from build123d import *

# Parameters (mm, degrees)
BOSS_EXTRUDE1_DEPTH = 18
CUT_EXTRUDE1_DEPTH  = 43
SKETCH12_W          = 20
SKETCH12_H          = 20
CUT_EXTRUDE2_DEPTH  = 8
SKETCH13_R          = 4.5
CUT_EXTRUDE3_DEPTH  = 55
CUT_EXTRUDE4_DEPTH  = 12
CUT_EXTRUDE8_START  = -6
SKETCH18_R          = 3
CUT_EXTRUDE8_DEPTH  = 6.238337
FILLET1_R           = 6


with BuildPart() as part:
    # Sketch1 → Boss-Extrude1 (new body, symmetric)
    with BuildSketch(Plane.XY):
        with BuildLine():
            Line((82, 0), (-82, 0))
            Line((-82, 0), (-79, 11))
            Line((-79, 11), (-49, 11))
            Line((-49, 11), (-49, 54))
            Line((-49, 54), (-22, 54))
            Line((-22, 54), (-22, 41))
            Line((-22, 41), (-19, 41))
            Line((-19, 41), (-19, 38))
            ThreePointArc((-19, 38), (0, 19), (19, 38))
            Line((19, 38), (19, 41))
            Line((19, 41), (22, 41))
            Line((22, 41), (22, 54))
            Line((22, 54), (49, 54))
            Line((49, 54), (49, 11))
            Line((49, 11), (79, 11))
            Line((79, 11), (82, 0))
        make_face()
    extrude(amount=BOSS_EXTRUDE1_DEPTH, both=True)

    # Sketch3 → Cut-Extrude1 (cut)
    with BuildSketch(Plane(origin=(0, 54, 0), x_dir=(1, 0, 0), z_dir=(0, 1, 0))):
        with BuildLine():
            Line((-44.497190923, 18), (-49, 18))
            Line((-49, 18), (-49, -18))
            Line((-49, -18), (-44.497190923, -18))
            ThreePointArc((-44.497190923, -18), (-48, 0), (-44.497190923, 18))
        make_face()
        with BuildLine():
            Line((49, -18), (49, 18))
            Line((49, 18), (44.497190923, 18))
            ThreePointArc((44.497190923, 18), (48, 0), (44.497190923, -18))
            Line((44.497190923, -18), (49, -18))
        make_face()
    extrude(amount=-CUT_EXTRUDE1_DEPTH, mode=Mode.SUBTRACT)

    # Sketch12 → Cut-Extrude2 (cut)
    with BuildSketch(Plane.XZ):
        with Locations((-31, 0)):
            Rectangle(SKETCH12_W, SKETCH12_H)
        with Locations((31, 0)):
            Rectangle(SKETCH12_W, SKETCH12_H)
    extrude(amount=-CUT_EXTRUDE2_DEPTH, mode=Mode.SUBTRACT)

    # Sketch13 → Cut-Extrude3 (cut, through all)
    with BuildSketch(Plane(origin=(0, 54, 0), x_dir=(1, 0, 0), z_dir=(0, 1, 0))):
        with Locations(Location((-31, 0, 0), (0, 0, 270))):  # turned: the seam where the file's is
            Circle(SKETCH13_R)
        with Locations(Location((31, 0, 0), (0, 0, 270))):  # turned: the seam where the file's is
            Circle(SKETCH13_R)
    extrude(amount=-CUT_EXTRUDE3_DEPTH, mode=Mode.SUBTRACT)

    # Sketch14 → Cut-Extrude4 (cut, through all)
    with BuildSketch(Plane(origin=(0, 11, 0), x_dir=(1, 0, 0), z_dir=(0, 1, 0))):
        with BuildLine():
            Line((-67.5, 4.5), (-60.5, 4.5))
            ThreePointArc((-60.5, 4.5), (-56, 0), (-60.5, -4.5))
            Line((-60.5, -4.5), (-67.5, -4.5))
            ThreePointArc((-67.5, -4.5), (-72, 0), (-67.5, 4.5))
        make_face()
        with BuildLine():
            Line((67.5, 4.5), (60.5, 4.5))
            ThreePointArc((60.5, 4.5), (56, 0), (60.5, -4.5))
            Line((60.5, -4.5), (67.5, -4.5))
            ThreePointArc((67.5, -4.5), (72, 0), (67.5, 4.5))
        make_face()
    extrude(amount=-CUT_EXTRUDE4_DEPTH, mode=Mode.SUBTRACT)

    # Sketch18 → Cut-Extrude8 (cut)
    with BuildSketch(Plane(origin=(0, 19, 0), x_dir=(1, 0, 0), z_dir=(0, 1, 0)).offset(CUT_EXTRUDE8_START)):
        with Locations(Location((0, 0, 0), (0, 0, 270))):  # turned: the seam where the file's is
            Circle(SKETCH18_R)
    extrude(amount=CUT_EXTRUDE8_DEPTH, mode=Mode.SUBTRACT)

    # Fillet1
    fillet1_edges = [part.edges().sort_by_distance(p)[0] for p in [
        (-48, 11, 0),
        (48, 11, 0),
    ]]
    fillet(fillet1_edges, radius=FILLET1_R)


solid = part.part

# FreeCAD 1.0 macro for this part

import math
import FreeCAD as App
import Part
import Sketcher

V = App.Vector
Q = App.Units.Quantity


def edges_at(feature, points):
    """Names of the edges that pass closest to the given points."""
    edges = feature.Shape.Edges
    near = lambda p: min(range(len(edges)), key=lambda i: edges[i].distToShape(Part.Vertex(*p))[0])
    return sorted({f"Edge{near(p) + 1}" for p in points})


def add_polygon(sketch, points):
    """Adds a closed chain of lines whose ends are joined by coincident constraints."""
    first, n = sketch.GeometryCount, len(points)
    for a, b in zip(points, points[1:] + points[:1]):
        sketch.addGeometry(Part.LineSegment(App.Vector(*a, 0), App.Vector(*b, 0)), False)
    for i in range(n):
        sketch.addConstraint(Sketcher.Constraint("Coincident", first + i, 2, first + (i + 1) % n, 1))

doc = App.newDocument("Part")
body = doc.addObject("PartDesign::Body", "Body")

sketch1 = body.newObject("Sketcher::SketchObject", "Sketch")
sketch1.AttachmentSupport = (doc.getObject("XY_Plane"), [""])
sketch1.MapMode = "FlatFace"
sketch1.addGeometry([
    Part.LineSegment(V(-82, 0, 0), V(82, 0, 0)),
    Part.LineSegment(V(82, 0, 0), V(79, 11, 0)),
    Part.LineSegment(V(79, 11, 0), V(49, 11, 0)),
    Part.LineSegment(V(49, 11, 0), V(49, 54, 0)),
    Part.LineSegment(V(49, 54, 0), V(22, 54, 0)),
    Part.LineSegment(V(22, 54, 0), V(22, 41, 0)),
    Part.LineSegment(V(22, 41, 0), V(19, 41, 0)),
    Part.LineSegment(V(19, 41, 0), V(19, 38, 0)),
    Part.ArcOfCircle(Part.Circle(V(0, 38, 0), V(0, 0, 1), 19), math.radians(180), math.radians(360)),
    Part.LineSegment(V(-19, 38, 0), V(-19, 41, 0)),
    Part.LineSegment(V(-19, 41, 0), V(-22, 41, 0)),
    Part.LineSegment(V(-22, 41, 0), V(-22, 54, 0)),
    Part.LineSegment(V(-22, 54, 0), V(-49, 54, 0)),
    Part.LineSegment(V(-49, 54, 0), V(-49, 11, 0)),
    Part.LineSegment(V(-49, 11, 0), V(-79, 11, 0)),
    Part.LineSegment(V(-79, 11, 0), V(-82, 0, 0)),
], False)
sketch1.addConstraint([
    Sketcher.Constraint("Coincident", 0, 2, 1, 1),
    Sketcher.Constraint("Coincident", 1, 2, 2, 1),
    Sketcher.Constraint("Coincident", 2, 2, 3, 1),
    Sketcher.Constraint("Coincident", 3, 2, 4, 1),
    Sketcher.Constraint("Coincident", 4, 2, 5, 1),
    Sketcher.Constraint("Coincident", 5, 2, 6, 1),
    Sketcher.Constraint("Coincident", 6, 2, 7, 1),
    Sketcher.Constraint("Tangent", 7, 2, 8, 2),
    Sketcher.Constraint("Tangent", 8, 1, 9, 1),
    Sketcher.Constraint("Coincident", 9, 2, 10, 1),
    Sketcher.Constraint("Coincident", 10, 2, 11, 1),
    Sketcher.Constraint("Coincident", 11, 2, 12, 1),
    Sketcher.Constraint("Coincident", 12, 2, 13, 1),
    Sketcher.Constraint("Coincident", 13, 2, 14, 1),
    Sketcher.Constraint("Coincident", 14, 2, 15, 1),
    Sketcher.Constraint("Coincident", 15, 2, 0, 1),
    Sketcher.Constraint("Horizontal", 0),
    Sketcher.Constraint("Horizontal", 2),
    Sketcher.Constraint("Vertical", 3),
    Sketcher.Constraint("Horizontal", 4),
    Sketcher.Constraint("Vertical", 5),
    Sketcher.Constraint("Horizontal", 6),
    Sketcher.Constraint("Vertical", 7),
    Sketcher.Constraint("Vertical", 9),
    Sketcher.Constraint("Horizontal", 10),
    Sketcher.Constraint("Vertical", 11),
    Sketcher.Constraint("Horizontal", 12),
    Sketcher.Constraint("Vertical", 13),
    Sketcher.Constraint("Horizontal", 14),
    Sketcher.Constraint("Symmetric", 0, 2, 15, 2, -1, 1),
    Sketcher.Constraint("Symmetric", 6, 2, 9, 2, -2),
    Sketcher.Constraint("Symmetric", 4, 2, 11, 2, -2),
    Sketcher.Constraint("Symmetric", 2, 2, 13, 2, -2),
    Sketcher.Constraint("Equal", 2, 14),
    Sketcher.Constraint("Equal", 10, 7),
    Sketcher.Constraint("Radius", 8, Q("19 mm")),
    Sketcher.Constraint("DistanceX", 0, 1, 0, 2, Q("164 mm")),
    Sketcher.Constraint("DistanceX", 2, 2, 2, 1, Q("30 mm")),
    Sketcher.Constraint("DistanceX", 4, 2, 4, 1, Q("27 mm")),
    Sketcher.Constraint("DistanceX", 6, 2, 6, 1, Q("3 mm")),
    Sketcher.Constraint("DistanceY", 3, 1, 3, 2, Q("43 mm")),
    Sketcher.Constraint("DistanceY", 5, 2, 5, 1, Q("13 mm")),
    Sketcher.Constraint("DistanceY", -1, 1, 8, 3, Q("38 mm")),
])
pad1 = body.newObject("PartDesign::Pad", "Pad")
pad1.Profile = sketch1
pad1.Length = 36
pad1.Midplane = True

sketch2 = body.newObject("Sketcher::SketchObject", "Sketch001")
sketch2.AttachmentSupport = (doc.getObject("XZ_Plane"), [""])
sketch2.MapMode = "FlatFace"
sketch2.AttachmentOffset = App.Placement(V(0, 0, -54), App.Rotation())
sketch2.addGeometry([
    Part.LineSegment(V(-44.5, -18, 0), V(-49, -18, 0)),
    Part.LineSegment(V(-49, -18, 0), V(-49, 18, 0)),
    Part.LineSegment(V(-49, 18, 0), V(-44.5, 18, 0)),
    Part.ArcOfCircle(Part.Circle(V(0, 0, 0), V(0, 0, 1), 48), math.radians(158), math.radians(202)),
    Part.LineSegment(V(49, 18, 0), V(49, -18, 0)),
    Part.LineSegment(V(49, -18, 0), V(44.5, -18, 0)),
    Part.ArcOfCircle(Part.Circle(V(0, 0, 0), V(0, 0, 1), 48), math.radians(-22), math.radians(22)),
    Part.LineSegment(V(44.5, 18, 0), V(49, 18, 0)),
], False)
sketch2.addConstraint([
    Sketcher.Constraint("Coincident", 0, 2, 1, 1),
    Sketcher.Constraint("Coincident", 1, 2, 2, 1),
    Sketcher.Constraint("Coincident", 2, 2, 3, 1),
    Sketcher.Constraint("Coincident", 3, 2, 0, 1),
    Sketcher.Constraint("Coincident", 4, 2, 5, 1),
    Sketcher.Constraint("Coincident", 5, 2, 6, 1),
    Sketcher.Constraint("Coincident", 6, 2, 7, 1),
    Sketcher.Constraint("Coincident", 7, 2, 4, 1),
    Sketcher.Constraint("Horizontal", 0),
    Sketcher.Constraint("Vertical", 1),
    Sketcher.Constraint("Horizontal", 2),
    Sketcher.Constraint("Vertical", 4),
    Sketcher.Constraint("Horizontal", 5),
    Sketcher.Constraint("Horizontal", 7),
    Sketcher.Constraint("Coincident", 3, 3, -1, 1),
    Sketcher.Constraint("Coincident", 6, 3, -1, 1),
    Sketcher.Constraint("Equal", 3, 6),
    Sketcher.Constraint("Symmetric", 1, 2, 4, 2, -1, 1),
    Sketcher.Constraint("Horizontal", 3, 2, 4, 2),
    Sketcher.Constraint("Horizontal", 2, 2, 6, 2),
    Sketcher.Constraint("Radius", 3, Q("48 mm")),
    Sketcher.Constraint("DistanceY", 1, 1, 1, 2, Q("36 mm")),
    Sketcher.Constraint("DistanceX", 0, 2, -1, 1, Q("49 mm")),
])
pocket1 = body.newObject("PartDesign::Pocket", "Pocket")
pocket1.Profile = sketch2
pocket1.Length = 43
pocket1.Reversed = True

sketch3 = body.newObject("Sketcher::SketchObject", "Sketch002")
sketch3.AttachmentSupport = (doc.getObject("XZ_Plane"), [""])
sketch3.MapMode = "FlatFace"
add_polygon(sketch3, [(-41, 10), (-41, -10), (-21, -10), (-21, 10)])
add_polygon(sketch3, [(21, 10), (21, -10), (41, -10), (41, 10)])
sketch3.addConstraint([
    Sketcher.Constraint("Vertical", 0),
    Sketcher.Constraint("Horizontal", 1),
    Sketcher.Constraint("Vertical", 2),
    Sketcher.Constraint("Horizontal", 3),
    Sketcher.Constraint("Vertical", 4),
    Sketcher.Constraint("Horizontal", 5),
    Sketcher.Constraint("Vertical", 6),
    Sketcher.Constraint("Horizontal", 7),
    Sketcher.Constraint("Symmetric", 2, 2, 4, 2, -1, 1),
    Sketcher.Constraint("Symmetric", 0, 2, 6, 2, -1, 1),
    Sketcher.Constraint("Horizontal", 1, 2, 4, 2),
    Sketcher.Constraint("Equal", 7, 0),
    Sketcher.Constraint("DistanceX", 1, 1, 1, 2, Q("20 mm")),
    Sketcher.Constraint("DistanceX", 0, 2, -1, 1, Q("41 mm")),
])
pocket2 = body.newObject("PartDesign::Pocket", "Pocket001")
pocket2.Profile = sketch3
pocket2.Length = 8

sketch4 = body.newObject("Sketcher::SketchObject", "Sketch003")
sketch4.AttachmentSupport = (doc.getObject("XZ_Plane"), [""])
sketch4.MapMode = "FlatFace"
sketch4.AttachmentOffset = App.Placement(V(0, 0, -54), App.Rotation())
sketch4.addGeometry([
    Part.Circle(V(-31, 0, 0), V(0, 0, 1), 4.5),
    Part.Circle(V(31, 0, 0), V(0, 0, 1), 4.5),
], False)
sketch4.addConstraint([
    Sketcher.Constraint("Equal", 0, 1),
    Sketcher.Constraint("Symmetric", 0, 3, 1, 3, -1, 1),
    Sketcher.Constraint("PointOnObject", 0, 3, -1),
    Sketcher.Constraint("Diameter", 0, Q("9 mm")),
    Sketcher.Constraint("DistanceX", 0, 3, -1, 1, Q("31 mm")),
])
pocket3 = body.newObject("PartDesign::Pocket", "Pocket002")
pocket3.Profile = sketch4
pocket3.Type = "ThroughAll"
pocket3.Reversed = True

sketch5 = body.newObject("Sketcher::SketchObject", "Sketch004")
sketch5.AttachmentSupport = (doc.getObject("XZ_Plane"), [""])
sketch5.MapMode = "FlatFace"
sketch5.AttachmentOffset = App.Placement(V(0, 0, -11), App.Rotation())
sketch5.addGeometry([
    Part.LineSegment(V(-60.5, -4.5, 0), V(-67.5, -4.5, 0)),
    Part.ArcOfCircle(Part.Circle(V(-67.5, 0, 0), V(0, 0, 1), 4.5), math.radians(90), math.radians(270)),
    Part.LineSegment(V(-67.5, 4.5, 0), V(-60.5, 4.5, 0)),
    Part.ArcOfCircle(Part.Circle(V(-60.5, 0, 0), V(0, 0, 1), 4.5), math.radians(-90), math.radians(90)),
    Part.LineSegment(V(67.5, -4.5, 0), V(60.5, -4.5, 0)),
    Part.ArcOfCircle(Part.Circle(V(60.5, 0, 0), V(0, 0, 1), 4.5), math.radians(90), math.radians(270)),
    Part.LineSegment(V(60.5, 4.5, 0), V(67.5, 4.5, 0)),
    Part.ArcOfCircle(Part.Circle(V(67.5, 0, 0), V(0, 0, 1), 4.5), math.radians(-90), math.radians(90)),
], False)
sketch5.addConstraint([
    Sketcher.Constraint("Tangent", 0, 2, 1, 2),
    Sketcher.Constraint("Tangent", 1, 1, 2, 1),
    Sketcher.Constraint("Tangent", 2, 2, 3, 2),
    Sketcher.Constraint("Tangent", 3, 1, 0, 1),
    Sketcher.Constraint("Tangent", 4, 2, 5, 2),
    Sketcher.Constraint("Tangent", 5, 1, 6, 1),
    Sketcher.Constraint("Tangent", 6, 2, 7, 2),
    Sketcher.Constraint("Tangent", 7, 1, 4, 1),
    Sketcher.Constraint("Horizontal", 0),
    Sketcher.Constraint("Horizontal", 2),
    Sketcher.Constraint("Horizontal", 4),
    Sketcher.Constraint("Horizontal", 6),
    Sketcher.Constraint("Equal", 3, 5),
    Sketcher.Constraint("Symmetric", 3, 3, 5, 3, -1, 1),
    Sketcher.Constraint("Symmetric", 1, 3, 7, 3, -2),
    Sketcher.Constraint("Radius", 1, Q("4.5 mm")),
    Sketcher.Constraint("DistanceX", 0, 2, 0, 1, Q("7 mm")),
    Sketcher.Constraint("DistanceX", 3, 3, 5, 3, Q("121 mm")),
])
pocket4 = body.newObject("PartDesign::Pocket", "Pocket003")
pocket4.Profile = sketch5
pocket4.Type = "ThroughAll"
pocket4.Reversed = True

sketch6 = body.newObject("Sketcher::SketchObject", "Sketch005")
sketch6.AttachmentSupport = (doc.getObject("XZ_Plane"), [""])
sketch6.MapMode = "FlatFace"
sketch6.AttachmentOffset = App.Placement(V(0, 0, -13), App.Rotation())
sketch6.addGeometry(Part.Circle(V(0, 0, 0), V(0, 0, 1), 3), False)
sketch6.addConstraint([
    Sketcher.Constraint("Coincident", 0, 3, -1, 1),
    Sketcher.Constraint("Diameter", 0, Q("6 mm")),
])
pocket5 = body.newObject("PartDesign::Pocket", "Pocket004")
pocket5.Profile = sketch6
pocket5.Length = 6.238337
doc.recompute()

fillet = body.newObject("PartDesign::Fillet", "Fillet")
fillet.Base = (pocket5, edges_at(pocket5, [(-48, 11, 0), (48, 11, 0)]))
fillet.Radius = 6

doc.recompute()
